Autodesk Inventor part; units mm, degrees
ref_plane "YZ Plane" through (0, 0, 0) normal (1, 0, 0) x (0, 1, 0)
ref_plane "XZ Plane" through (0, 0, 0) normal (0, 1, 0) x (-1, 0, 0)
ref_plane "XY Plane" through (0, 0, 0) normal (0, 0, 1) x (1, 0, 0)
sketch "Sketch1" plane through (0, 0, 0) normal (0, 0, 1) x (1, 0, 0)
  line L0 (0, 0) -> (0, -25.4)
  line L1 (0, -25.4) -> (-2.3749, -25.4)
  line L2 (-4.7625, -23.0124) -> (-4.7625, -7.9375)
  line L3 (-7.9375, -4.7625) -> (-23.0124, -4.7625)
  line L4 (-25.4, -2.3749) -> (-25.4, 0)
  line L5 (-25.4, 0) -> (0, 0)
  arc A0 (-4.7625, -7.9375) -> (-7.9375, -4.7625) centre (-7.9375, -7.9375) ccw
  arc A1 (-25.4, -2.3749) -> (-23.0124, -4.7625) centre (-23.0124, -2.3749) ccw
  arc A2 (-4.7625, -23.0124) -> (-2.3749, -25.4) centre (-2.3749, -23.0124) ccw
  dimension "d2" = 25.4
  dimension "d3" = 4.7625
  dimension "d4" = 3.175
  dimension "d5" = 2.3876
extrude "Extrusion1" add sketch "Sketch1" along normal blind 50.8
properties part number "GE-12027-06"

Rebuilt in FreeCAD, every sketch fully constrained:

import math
import FreeCAD as App
import Part
import Sketcher

V = App.Vector
Q = App.Units.Quantity

doc = App.newDocument("Part")
body = doc.addObject("PartDesign::Body", "Body")

# Sketch on XY plane
sketch1 = doc.addObject("Sketcher::SketchObject", "Sketch")
body.addObject(sketch1)
sketch1.AttachmentSupport = (doc.XY_Plane, [""])
sketch1.MapMode = "FlatFace"
sketch1.addGeometry(Part.LineSegment(V(0, -25.4, 0), V(0, 0, 0)), False)
sketch1.addGeometry(Part.LineSegment(V(0, 0, 0), V(-25.4, 0, 0)), False)
sketch1.addGeometry(Part.LineSegment(V(-25.4, 0, 0), V(-25.4, -2.3749, 0)), False)
sketch1.addGeometry(Part.ArcOfCircle(Part.Circle(V(-23.0124, -2.3749, 0), V(0, 0, 1), 2.3876), math.radians(180), math.radians(270)), False)
sketch1.addGeometry(Part.LineSegment(V(-23.0124, -4.7625, 0), V(-7.9375, -4.7625, 0)), False)
sketch1.addGeometry(Part.ArcOfCircle(Part.Circle(V(-7.9375, -7.9375, 0), V(0, 0, 1), 3.175), math.radians(0), math.radians(90)), False)
sketch1.addGeometry(Part.LineSegment(V(-4.7625, -7.9375, 0), V(-4.7625, -23.0124, 0)), False)
sketch1.addGeometry(Part.ArcOfCircle(Part.Circle(V(-2.3749, -23.0124, 0), V(0, 0, 1), 2.3876), math.radians(180), math.radians(270)), False)
sketch1.addGeometry(Part.LineSegment(V(-2.3749, -25.4, 0), V(0, -25.4, 0)), False)
sketch1.addConstraint(Sketcher.Constraint("Coincident", 0, 2, 1, 1))
sketch1.addConstraint(Sketcher.Constraint("Coincident", 1, 2, 2, 1))
sketch1.addConstraint(Sketcher.Constraint("Tangent", 2, 2, 3, 1))
sketch1.addConstraint(Sketcher.Constraint("Tangent", 3, 2, 4, 1))
sketch1.addConstraint(Sketcher.Constraint("Tangent", 4, 2, 5, 2))
sketch1.addConstraint(Sketcher.Constraint("Tangent", 5, 1, 6, 1))
sketch1.addConstraint(Sketcher.Constraint("Tangent", 6, 2, 7, 1))
sketch1.addConstraint(Sketcher.Constraint("Tangent", 7, 2, 8, 1))
sketch1.addConstraint(Sketcher.Constraint("Coincident", 8, 2, 0, 1))
sketch1.addConstraint(Sketcher.Constraint("Vertical", 0))
sketch1.addConstraint(Sketcher.Constraint("Horizontal", 1))
sketch1.addConstraint(Sketcher.Constraint("Vertical", 2))
sketch1.addConstraint(Sketcher.Constraint("Horizontal", 4))
sketch1.addConstraint(Sketcher.Constraint("Vertical", 6))
sketch1.addConstraint(Sketcher.Constraint("Horizontal", 8))
sketch1.addConstraint(Sketcher.Constraint("Coincident", 0, 2, -1, 1))
sketch1.addConstraint(Sketcher.Constraint("Equal", 3, 7))
sketch1.addConstraint(Sketcher.Constraint("Equal", 1, 0))
sketch1.addConstraint(Sketcher.Constraint("Equal", 8, 2))
sketch1.addConstraint(Sketcher.Constraint("DistanceX", 1, 2, 1, 1, Q("1 in")))
sketch1.addConstraint(Sketcher.Constraint("Radius", 3, Q("0.094 in")))
sketch1.addConstraint(Sketcher.Constraint("Radius", 5, Q("0.125 in")))
sketch1.addConstraint(Sketcher.Constraint("DistanceY", 3, 2, -1, 1, Q("0.1875 in")))
pad1 = doc.addObject("PartDesign::Pad", "Pad")
body.addObject(pad1)
pad1.Profile = sketch1
pad1.Length = Q("2 in")

doc.recompute()
